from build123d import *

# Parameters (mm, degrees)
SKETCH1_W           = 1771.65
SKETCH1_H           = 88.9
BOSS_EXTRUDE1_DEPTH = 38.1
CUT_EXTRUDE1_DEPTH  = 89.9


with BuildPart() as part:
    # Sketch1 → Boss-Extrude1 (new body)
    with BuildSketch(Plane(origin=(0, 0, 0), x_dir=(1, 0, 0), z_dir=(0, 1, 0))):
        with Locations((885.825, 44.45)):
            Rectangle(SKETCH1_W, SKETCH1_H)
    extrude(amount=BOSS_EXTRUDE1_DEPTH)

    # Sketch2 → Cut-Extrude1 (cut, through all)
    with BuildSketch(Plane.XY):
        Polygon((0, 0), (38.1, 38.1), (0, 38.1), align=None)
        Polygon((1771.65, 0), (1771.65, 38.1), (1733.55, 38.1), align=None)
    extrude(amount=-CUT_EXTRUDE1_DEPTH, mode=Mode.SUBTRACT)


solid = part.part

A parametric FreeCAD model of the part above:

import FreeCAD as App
import Part
import Sketcher

V = App.Vector
Q = App.Units.Quantity


def add_polygon(sketch, points):
    """Adds a closed chain of lines whose ends are joined by coincident constraints."""
    first, n = sketch.GeometryCount, len(points)
    for a, b in zip(points, points[1:] + points[:1]):
        sketch.addGeometry(Part.LineSegment(App.Vector(*a, 0), App.Vector(*b, 0)), False)
    for i in range(n):
        sketch.addConstraint(Sketcher.Constraint("Coincident", first + i, 2, first + (i + 1) % n, 1))

doc = App.newDocument("Part")
params = doc.addObject("Spreadsheet::Sheet", "Params")
for row, (alias, value) in enumerate([
    ("sketch1_height", "3.5 in"),
    ("sketch1_width", "69.75 in"),
    ("pad1_length", "1.5 in"),
    ("sketch2_width", "1.5 in"),
], start=1):
    params.set(f"A{row}", alias)
    params.set(f"B{row}", "=" + value)
    params.setAlias(f"B{row}", alias)

body = doc.addObject("PartDesign::Body", "Body")

sketch1 = body.newObject("Sketcher::SketchObject", "Sketch")
sketch1.AttachmentSupport = (doc.getObject("XZ_Plane"), [""])
sketch1.MapMode = "FlatFace"
add_polygon(sketch1, [(0, -89), (0, 0), (1772, 0), (1772, -89)])
sketch1.addConstraint(Sketcher.Constraint("Vertical", 0))
sketch1.addConstraint(Sketcher.Constraint("Horizontal", 1))
sketch1.addConstraint(Sketcher.Constraint("Vertical", 2))
sketch1.addConstraint(Sketcher.Constraint("Horizontal", 3))
sketch1.addConstraint(Sketcher.Constraint("Coincident", 0, 2, -1, 1))
sketch1.addConstraint(Sketcher.Constraint("DistanceY", 0, 1, 0, 2, Q("3.5 in")))
sketch1.addConstraint(Sketcher.Constraint("DistanceX", 1, 1, 1, 2, Q("69.75 in")))
sketch1.setExpression("Constraints[9]", "Params.sketch1_height")
sketch1.setExpression("Constraints[10]", "Params.sketch1_width")
pad1 = body.newObject("PartDesign::Pad", "Pad")
pad1.Profile = sketch1
pad1.setExpression("Length", "Params.pad1_length")
pad1.Reversed = True

sketch2 = body.newObject("Sketcher::SketchObject", "Sketch001")
sketch2.AttachmentSupport = (doc.getObject("XY_Plane"), [""])
sketch2.MapMode = "FlatFace"
add_polygon(sketch2, [(0, 0), (38, 38), (0, 38)])
add_polygon(sketch2, [(1772, 0), (1772, 38), (1734, 38)])
sketch2.addConstraint(Sketcher.Constraint("Horizontal", 1))
sketch2.addConstraint(Sketcher.Constraint("Vertical", 2))
sketch2.addConstraint(Sketcher.Constraint("Vertical", 3))
sketch2.addConstraint(Sketcher.Constraint("Horizontal", 4))
sketch2.addConstraint(Sketcher.Constraint("Coincident", 2, 2, -1, 1))
sketch2.addConstraint(Sketcher.Constraint("PointOnObject", 5, 2, -1))
sketch2.addConstraint(Sketcher.Constraint("Perpendicular", 0, 5))
sketch2.addConstraint(Sketcher.Constraint("Horizontal", 1, 2, 3, 2))
sketch2.addConstraint(Sketcher.Constraint("Equal", 1, 4))
sketch2.addConstraint(Sketcher.Constraint("DistanceX", 1, 2, 1, 1, Q("1.5 in")))
sketch2.addConstraint(Sketcher.Constraint("DistanceX", -1, 1, 3, 2, Q("69.75 in")))
sketch2.setExpression("Constraints[15]", "Params.sketch2_width")
pocket1 = body.newObject("PartDesign::Pocket", "Pocket")
pocket1.Profile = sketch2
pocket1.Type = "ThroughAll"

doc.recompute()
